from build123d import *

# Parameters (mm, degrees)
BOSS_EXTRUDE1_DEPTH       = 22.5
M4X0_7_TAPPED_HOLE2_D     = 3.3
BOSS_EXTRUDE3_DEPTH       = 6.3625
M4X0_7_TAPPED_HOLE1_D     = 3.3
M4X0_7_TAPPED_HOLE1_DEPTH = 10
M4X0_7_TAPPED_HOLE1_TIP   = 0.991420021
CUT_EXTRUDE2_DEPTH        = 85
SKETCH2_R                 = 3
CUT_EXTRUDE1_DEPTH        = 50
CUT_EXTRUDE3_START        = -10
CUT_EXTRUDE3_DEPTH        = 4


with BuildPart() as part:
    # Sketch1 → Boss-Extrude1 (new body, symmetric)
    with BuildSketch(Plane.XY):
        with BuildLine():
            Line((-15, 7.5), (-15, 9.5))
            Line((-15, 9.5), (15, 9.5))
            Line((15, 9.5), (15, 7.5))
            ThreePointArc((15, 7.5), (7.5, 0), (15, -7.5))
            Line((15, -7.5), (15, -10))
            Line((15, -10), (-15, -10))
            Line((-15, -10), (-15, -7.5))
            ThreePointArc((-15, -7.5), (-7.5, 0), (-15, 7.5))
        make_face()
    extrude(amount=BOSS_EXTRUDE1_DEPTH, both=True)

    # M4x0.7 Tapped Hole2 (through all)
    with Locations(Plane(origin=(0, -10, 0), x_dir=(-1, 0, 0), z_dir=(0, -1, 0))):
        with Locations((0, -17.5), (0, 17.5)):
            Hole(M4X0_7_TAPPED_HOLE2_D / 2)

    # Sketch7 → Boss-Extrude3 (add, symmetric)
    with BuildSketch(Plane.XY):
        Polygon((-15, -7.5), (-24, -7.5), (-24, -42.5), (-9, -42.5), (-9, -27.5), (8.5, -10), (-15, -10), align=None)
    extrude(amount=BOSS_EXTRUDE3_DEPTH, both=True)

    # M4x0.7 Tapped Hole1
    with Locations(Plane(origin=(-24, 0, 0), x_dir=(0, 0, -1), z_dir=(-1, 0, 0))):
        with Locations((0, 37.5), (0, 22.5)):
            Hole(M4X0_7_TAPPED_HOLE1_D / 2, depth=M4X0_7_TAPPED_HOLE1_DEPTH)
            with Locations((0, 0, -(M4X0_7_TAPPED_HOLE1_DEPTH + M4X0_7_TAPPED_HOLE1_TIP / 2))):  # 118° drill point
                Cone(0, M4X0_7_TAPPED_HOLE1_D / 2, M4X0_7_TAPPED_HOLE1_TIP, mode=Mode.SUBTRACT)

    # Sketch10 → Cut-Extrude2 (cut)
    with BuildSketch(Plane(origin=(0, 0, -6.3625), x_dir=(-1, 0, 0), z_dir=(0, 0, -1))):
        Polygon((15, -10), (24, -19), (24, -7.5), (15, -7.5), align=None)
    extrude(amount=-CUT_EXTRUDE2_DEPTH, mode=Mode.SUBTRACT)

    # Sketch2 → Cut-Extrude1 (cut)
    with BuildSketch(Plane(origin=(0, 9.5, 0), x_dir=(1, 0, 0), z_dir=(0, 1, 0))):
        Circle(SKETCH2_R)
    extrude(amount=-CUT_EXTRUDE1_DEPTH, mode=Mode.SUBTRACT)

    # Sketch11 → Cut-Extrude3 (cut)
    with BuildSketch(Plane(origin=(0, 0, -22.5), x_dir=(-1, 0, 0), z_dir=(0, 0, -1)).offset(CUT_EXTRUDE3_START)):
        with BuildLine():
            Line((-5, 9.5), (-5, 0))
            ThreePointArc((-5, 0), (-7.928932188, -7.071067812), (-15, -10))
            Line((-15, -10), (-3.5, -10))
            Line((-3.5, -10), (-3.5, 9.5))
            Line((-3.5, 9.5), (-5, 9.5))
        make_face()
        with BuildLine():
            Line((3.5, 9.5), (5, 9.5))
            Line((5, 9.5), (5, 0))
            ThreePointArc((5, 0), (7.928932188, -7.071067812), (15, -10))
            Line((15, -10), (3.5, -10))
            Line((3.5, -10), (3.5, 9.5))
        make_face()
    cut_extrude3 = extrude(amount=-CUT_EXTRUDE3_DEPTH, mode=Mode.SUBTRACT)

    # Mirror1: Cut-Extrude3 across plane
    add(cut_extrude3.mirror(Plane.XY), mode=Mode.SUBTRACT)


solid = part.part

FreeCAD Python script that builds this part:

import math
import FreeCAD as App
import Part
import Sketcher
from FreeCAD import Vector
Q = App.Units.Quantity


def add_polygon(sketch, points):
    """Adds a closed chain of lines whose ends are joined by coincident constraints."""
    first, n = sketch.GeometryCount, len(points)
    for a, b in zip(points, points[1:] + points[:1]):
        sketch.addGeometry(Part.LineSegment(App.Vector(*a, 0), App.Vector(*b, 0)), False)
    for i in range(n):
        sketch.addConstraint(Sketcher.Constraint("Coincident", first + i, 2, first + (i + 1) % n, 1))

doc = App.newDocument("Part")
body = doc.addObject("PartDesign::Body", "Body")

sketch1 = body.newObject("Sketcher::SketchObject", "Sketch")
sketch1.AttachmentSupport = (doc.getObject("XY_Plane"), [""])
sketch1.MapMode = "FlatFace"
sketch1.addGeometry([
    Part.LineSegment(Vector(-15, 9.5, 0), Vector(-15, 7.5, 0)),
    Part.ArcOfCircle(Part.Circle(Vector(-15, 0, 0), Vector(0, 0, 1), 7.5), math.radians(-90), math.radians(90)),
    Part.LineSegment(Vector(-15, -7.5, 0), Vector(-15, -10, 0)),
    Part.LineSegment(Vector(-15, -10, 0), Vector(15, -10, 0)),
    Part.LineSegment(Vector(15, -10, 0), Vector(15, -7.5, 0)),
    Part.ArcOfCircle(Part.Circle(Vector(15, 0, 0), Vector(0, 0, 1), 7.5), math.radians(90), math.radians(270)),
    Part.LineSegment(Vector(15, 7.5, 0), Vector(15, 9.5, 0)),
    Part.LineSegment(Vector(15, 9.5, 0), Vector(-15, 9.5, 0)),
], False)
sketch1.addConstraint([
    Sketcher.Constraint("Coincident", 0, 2, 1, 2),
    Sketcher.Constraint("Coincident", 1, 1, 2, 1),
    Sketcher.Constraint("Coincident", 2, 2, 3, 1),
    Sketcher.Constraint("Coincident", 3, 2, 4, 1),
    Sketcher.Constraint("Coincident", 4, 2, 5, 2),
    Sketcher.Constraint("Coincident", 5, 1, 6, 1),
    Sketcher.Constraint("Coincident", 6, 2, 7, 1),
    Sketcher.Constraint("Coincident", 7, 2, 0, 1),
    Sketcher.Constraint("Vertical", 0),
    Sketcher.Constraint("Vertical", 2),
    Sketcher.Constraint("Horizontal", 3),
    Sketcher.Constraint("Vertical", 4),
    Sketcher.Constraint("Vertical", 6),
    Sketcher.Constraint("Horizontal", 7),
    Sketcher.Constraint("Equal", 1, 5),
    Sketcher.Constraint("Symmetric", 1, 3, 5, 3, -1, 1),
    Sketcher.Constraint("Symmetric", 1, 1, 4, 2, -2),
    Sketcher.Constraint("Vertical", 1, 3, 0, 2),
    Sketcher.Constraint("Vertical", 0, 2, 1, 1),
    Sketcher.Constraint("Vertical", 4, 2, 5, 1),
    Sketcher.Constraint("Radius", 1, 7.5),
    Sketcher.Constraint("DistanceX", 3, 1, 3, 2, 30.0),
    Sketcher.Constraint("DistanceY", 0, 2, 0, 1, 2.0),
    Sketcher.Constraint("DistanceY", 2, 2, 2, 1, 2.5),
])
pad1 = body.newObject("PartDesign::Pad", "Pad")
pad1.Profile = sketch1
pad1.Length = 45
pad1.Midplane = True

sketch2 = body.newObject("Sketcher::SketchObject", "Sketch001")
sketch2.AttachmentSupport = (doc.getObject("XZ_Plane"), [""])
sketch2.MapMode = "FlatFace"
sketch2.AttachmentOffset = App.Placement(Vector(0, 0, 10), App.Rotation())
sketch2.addGeometry([
    Part.Circle(Vector(0, 17.5, 0), Vector(0, 0, 1), 1.6),
    Part.Circle(Vector(0, -17.5, 0), Vector(0, 0, 1), 1.6),
], False)
sketch2.addConstraint([
    Sketcher.Constraint("Equal", 0, 1),
    Sketcher.Constraint("Symmetric", 0, 3, 1, 3, -1, 1),
    Sketcher.Constraint("PointOnObject", 0, 3, -2),
    Sketcher.Constraint("Diameter", 0, 3.3),
    Sketcher.Constraint("DistanceY", 1, 3, 0, 3, 35.0),
])
doc.recompute()
hole = body.newObject("PartDesign::Hole", "Hole")
hole.Profile = sketch2
hole.ThreadType = "None"
hole.Diameter = 3.3
hole.DepthType = "ThroughAll"

sketch3 = body.newObject("Sketcher::SketchObject", "Sketch002")
sketch3.AttachmentSupport = (doc.getObject("XY_Plane"), [""])
sketch3.MapMode = "FlatFace"
add_polygon(sketch3, [(-15, -7.5), (-24, -7.5), (-24, -42.5), (-9, -42.5), (-9, -27.5), (8.5, -10), (-15, -10)])
sketch3.addConstraint([
    Sketcher.Constraint("Horizontal", 0),
    Sketcher.Constraint("Vertical", 1),
    Sketcher.Constraint("Horizontal", 2),
    Sketcher.Constraint("Vertical", 3),
    Sketcher.Constraint("Horizontal", 5),
    Sketcher.Constraint("Vertical", 6),
    Sketcher.Constraint("Equal", 2, 3),
    Sketcher.Constraint("DistanceX", 0, 2, 0, 1, 9.0),
    Sketcher.Constraint("DistanceX", 2, 1, 2, 2, 15.0),
    Sketcher.Constraint("DistanceY", 1, 2, 1, 1, 35.0),
    Sketcher.Constraint("Angle", 4, Q("45 deg")),
    Sketcher.Constraint("DistanceX", 5, 2, 5, 1, 23.5),
    Sketcher.Constraint("DistanceX", 0, 2, -1, 1, 24.0),
    Sketcher.Constraint("DistanceY", 4, 2, -1, 1, 10.0),
])
pad2 = body.newObject("PartDesign::Pad", "Pad001")
pad2.Profile = sketch3
pad2.Length = 12.725
pad2.Midplane = True

sketch4 = body.newObject("Sketcher::SketchObject", "Sketch003")
sketch4.AttachmentSupport = (doc.getObject("YZ_Plane"), [""])
sketch4.MapMode = "FlatFace"
sketch4.AttachmentOffset = App.Placement(Vector(0, 0, -24), App.Rotation())
sketch4.addGeometry([
    Part.Circle(Vector(-37.5, 0, 0), Vector(0, 0, 1), 1.6),
    Part.Circle(Vector(-22.5, 0, 0), Vector(0, 0, 1), 1.6),
], False)
sketch4.addConstraint([
    Sketcher.Constraint("Equal", 0, 1),
    Sketcher.Constraint("PointOnObject", 0, 3, -1),
    Sketcher.Constraint("PointOnObject", 1, 3, -1),
    Sketcher.Constraint("Diameter", 0, 3.3),
    Sketcher.Constraint("DistanceX", 0, 3, 1, 3, 15.0),
    Sketcher.Constraint("DistanceX", 0, 3, -1, 1, 37.5),
])
doc.recompute()
hole2 = body.newObject("PartDesign::Hole", "Hole001")
hole2.Profile = sketch4
hole2.ThreadType = "None"
hole2.Diameter = 3.3
hole2.DepthType = "Dimension"
hole2.Depth = 10
hole2.DrillPoint = "Angled"
hole2.DrillPointAngle = 118
hole2.Reversed = True

sketch5 = body.newObject("Sketcher::SketchObject", "Sketch004")
sketch5.AttachmentSupport = (doc.getObject("XY_Plane"), [""])
sketch5.MapMode = "FlatFace"
sketch5.AttachmentOffset = App.Placement(Vector(0, 0, -6.3625), App.Rotation())
add_polygon(sketch5, [(-15, -10), (-24, -19), (-24, -7.5), (-15, -7.5)])
sketch5.addConstraint([
    Sketcher.Constraint("Vertical", 1),
    Sketcher.Constraint("Horizontal", 2),
    Sketcher.Constraint("Vertical", 3),
    Sketcher.Constraint("DistanceX", 2, 1, 2, 2, 9.0),
    Sketcher.Constraint("Angle", 0, Q("-135 deg")),
    Sketcher.Constraint("DistanceY", 1, 1, 1, 2, 11.5),
    Sketcher.Constraint("DistanceX", 0, 2, -1, 1, 24.0),
    Sketcher.Constraint("DistanceY", 0, 2, -1, 1, 19.0),
])
pocket1 = body.newObject("PartDesign::Pocket", "Pocket")
pocket1.Profile = sketch5
pocket1.Length = 85
pocket1.Reversed = True

sketch6 = body.newObject("Sketcher::SketchObject", "Sketch005")
sketch6.AttachmentSupport = (doc.getObject("XZ_Plane"), [""])
sketch6.MapMode = "FlatFace"
sketch6.AttachmentOffset = App.Placement(Vector(0, 0, -9.5), App.Rotation())
sketch6.addGeometry(Part.Circle(Vector(0, 0, 0), Vector(0, 0, 1), 3), False)
sketch6.addConstraint([
    Sketcher.Constraint("Coincident", 0, 3, -1, 1),
    Sketcher.Constraint("Diameter", 0, 6.0),
])
pocket2 = body.newObject("PartDesign::Pocket", "Pocket001")
pocket2.Profile = sketch6
pocket2.Length = 50
pocket2.Reversed = True

sketch7 = body.newObject("Sketcher::SketchObject", "Sketch006")
sketch7.AttachmentSupport = (doc.getObject("XY_Plane"), [""])
sketch7.MapMode = "FlatFace"
sketch7.AttachmentOffset = App.Placement(Vector(0, 0, -12.5), App.Rotation())
sketch7.addGeometry([
    Part.LineSegment(Vector(5, 9.5, 0), Vector(5, 0, 0)),
    Part.ArcOfCircle(Part.Circle(Vector(15, 0, 0), Vector(0, 0, 1), 10), math.radians(180), math.radians(270)),
    Part.LineSegment(Vector(15, -10, 0), Vector(3.5, -10, 0)),
    Part.LineSegment(Vector(3.5, -10, 0), Vector(3.5, 9.5, 0)),
    Part.LineSegment(Vector(3.5, 9.5, 0), Vector(5, 9.5, 0)),
    Part.LineSegment(Vector(-5, 9.5, 0), Vector(-3.5, 9.5, 0)),
    Part.LineSegment(Vector(-3.5, 9.5, 0), Vector(-3.5, -10, 0)),
    Part.LineSegment(Vector(-3.5, -10, 0), Vector(-15, -10, 0)),
    Part.ArcOfCircle(Part.Circle(Vector(-15, 0, 0), Vector(0, 0, 1), 10), math.radians(-90), math.radians(0)),
    Part.LineSegment(Vector(-5, 0, 0), Vector(-5, 9.5, 0)),
], False)
sketch7.addConstraint([
    Sketcher.Constraint("Tangent", 0, 2, 1, 1),
    Sketcher.Constraint("Tangent", 1, 2, 2, 1),
    Sketcher.Constraint("Coincident", 2, 2, 3, 1),
    Sketcher.Constraint("Coincident", 3, 2, 4, 1),
    Sketcher.Constraint("Coincident", 4, 2, 0, 1),
    Sketcher.Constraint("Coincident", 5, 2, 6, 1),
    Sketcher.Constraint("Coincident", 6, 2, 7, 1),
    Sketcher.Constraint("Tangent", 7, 2, 8, 1),
    Sketcher.Constraint("Tangent", 8, 2, 9, 1),
    Sketcher.Constraint("Coincident", 9, 2, 5, 1),
    Sketcher.Constraint("Vertical", 0),
    Sketcher.Constraint("Horizontal", 2),
    Sketcher.Constraint("Vertical", 3),
    Sketcher.Constraint("Horizontal", 4),
    Sketcher.Constraint("Horizontal", 5),
    Sketcher.Constraint("Vertical", 6),
    Sketcher.Constraint("Horizontal", 7),
    Sketcher.Constraint("Vertical", 9),
    Sketcher.Constraint("Equal", 1, 8),
    Sketcher.Constraint("Symmetric", 1, 3, 8, 3, -1, 1),
    Sketcher.Constraint("Symmetric", 3, 2, 5, 2, -2),
    Sketcher.Constraint("PointOnObject", 1, 3, -1),
    Sketcher.Constraint("Radius", 1, 10.0),
    Sketcher.Constraint("DistanceX", 2, 2, 2, 1, 11.5),
    Sketcher.Constraint("DistanceY", 0, 2, 0, 1, 9.5),
    Sketcher.Constraint("DistanceX", -1, 1, 1, 3, 15.0),
])
pocket3 = body.newObject("PartDesign::Pocket", "Pocket002")
pocket3.Profile = sketch7
pocket3.Length = 4
pocket3.Reversed = True
doc.recompute()

mirrored = body.newObject("PartDesign::Mirrored", "Mirrored")
mirrored.Originals = [pocket3]
mirrored.MirrorPlane = (doc.getObject("XY_Plane"), [""])
body.Tip = mirrored

doc.recompute()
